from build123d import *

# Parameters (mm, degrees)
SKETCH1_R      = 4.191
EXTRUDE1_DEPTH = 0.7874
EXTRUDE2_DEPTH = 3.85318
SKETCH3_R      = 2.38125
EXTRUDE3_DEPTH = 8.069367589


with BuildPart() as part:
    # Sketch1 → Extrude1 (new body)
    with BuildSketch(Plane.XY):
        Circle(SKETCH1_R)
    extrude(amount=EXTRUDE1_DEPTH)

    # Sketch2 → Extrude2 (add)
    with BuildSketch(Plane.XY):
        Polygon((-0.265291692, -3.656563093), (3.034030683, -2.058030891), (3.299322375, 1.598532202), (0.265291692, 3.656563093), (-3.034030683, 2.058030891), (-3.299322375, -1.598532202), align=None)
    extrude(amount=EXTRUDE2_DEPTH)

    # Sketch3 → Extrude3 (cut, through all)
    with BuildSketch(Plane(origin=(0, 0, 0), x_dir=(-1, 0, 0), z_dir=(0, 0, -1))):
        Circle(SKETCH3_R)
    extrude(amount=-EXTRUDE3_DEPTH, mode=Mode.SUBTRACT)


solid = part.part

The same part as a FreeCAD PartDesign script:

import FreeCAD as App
import Part
import Sketcher
from FreeCAD import Vector
Q = App.Units.Quantity

doc = App.newDocument("Part")
body = doc.addObject("PartDesign::Body", "Body")

# Sketch on XY plane
sketch1 = body.newObject("Sketcher::SketchObject", "Sketch")
sketch1.AttachmentSupport = (doc.getObject("XY_Plane"), [""])
sketch1.MapMode = "FlatFace"
sketch1.addGeometry(Part.Circle(Vector(0, 0, 0), Vector(0, 0, 1), 4.2), False)
sketch1.addConstraint([
    Sketcher.Constraint("Coincident", 0, 3, -1, 1),
    Sketcher.Constraint("Diameter", 0, Q("0.33 in")),
])
pad1 = body.newObject("PartDesign::Pad", "Pad")
pad1.Profile = sketch1
pad1.Length = Q("0.031 in")

# Sketch on XY plane
sketch2 = body.newObject("Sketcher::SketchObject", "Sketch001")
sketch2.AttachmentSupport = (doc.getObject("XY_Plane"), [""])
sketch2.MapMode = "FlatFace"
sketch2.addGeometry([
    Part.LineSegment(Vector(-0.3, -3.7, 0), Vector(3, -2.1, 0)),  # 0
    Part.LineSegment(Vector(3, -2.1, 0), Vector(3.3, 1.6, 0)),  # 1
    Part.LineSegment(Vector(3.3, 1.6, 0), Vector(0.3, 3.7, 0)),  # 2
    Part.LineSegment(Vector(0.3, 3.7, 0), Vector(-3, 2.1, 0)),  # 3
    Part.LineSegment(Vector(-3, 2.1, 0), Vector(-3.3, -1.6, 0)),  # 4
    Part.LineSegment(Vector(-3.3, -1.6, 0), Vector(-0.3, -3.7, 0)),  # 5
], False)
sketch2.addConstraint([
    Sketcher.Constraint("Coincident", 0, 2, 1, 1),
    Sketcher.Constraint("Coincident", 1, 2, 2, 1),
    Sketcher.Constraint("Coincident", 2, 2, 3, 1),
    Sketcher.Constraint("Coincident", 3, 2, 4, 1),
    Sketcher.Constraint("Coincident", 4, 2, 5, 1),
    Sketcher.Constraint("Coincident", 5, 2, 0, 1),
    Sketcher.Constraint("Symmetric", 0, 2, 3, 2, -1, 1),
    Sketcher.Constraint("Symmetric", 1, 2, 4, 2, -1, 1),
    Sketcher.Constraint("Symmetric", 2, 2, 5, 2, -1, 1),
    Sketcher.Constraint("Equal", 0, 1),
    Sketcher.Constraint("Equal", 1, 2),
    Sketcher.Constraint("DistanceX", 3, 2, 0, 2, Q("0.2389001 in")),
    Sketcher.Constraint("DistanceY", 1, 2, 3, 2, 0.459499),
    Sketcher.Constraint("DistanceY", 0, 2, -1, 1, 2.058031),
    Sketcher.Constraint("DistanceX", -1, 1, 2, 2, 0.265292),
])
pad2 = body.newObject("PartDesign::Pad", "Pad001")
pad2.Profile = sketch2
pad2.Length = Q("0.1517 in")

# Sketch on XY plane
sketch3 = body.newObject("Sketcher::SketchObject", "Sketch002")
sketch3.AttachmentSupport = (doc.getObject("XY_Plane"), [""])
sketch3.MapMode = "FlatFace"
sketch3.addGeometry(Part.Circle(Vector(0, 0, 0), Vector(0, 0, 1), 2.4), False)
sketch3.addConstraint([
    Sketcher.Constraint("Coincident", 0, 3, -1, 1),
    Sketcher.Constraint("Diameter", 0, Q("0.1875 in")),
])
pocket1 = body.newObject("PartDesign::Pocket", "Pocket")
pocket1.Profile = sketch3
pocket1.Type = "ThroughAll"
pocket1.Reversed = True

doc.recompute()
